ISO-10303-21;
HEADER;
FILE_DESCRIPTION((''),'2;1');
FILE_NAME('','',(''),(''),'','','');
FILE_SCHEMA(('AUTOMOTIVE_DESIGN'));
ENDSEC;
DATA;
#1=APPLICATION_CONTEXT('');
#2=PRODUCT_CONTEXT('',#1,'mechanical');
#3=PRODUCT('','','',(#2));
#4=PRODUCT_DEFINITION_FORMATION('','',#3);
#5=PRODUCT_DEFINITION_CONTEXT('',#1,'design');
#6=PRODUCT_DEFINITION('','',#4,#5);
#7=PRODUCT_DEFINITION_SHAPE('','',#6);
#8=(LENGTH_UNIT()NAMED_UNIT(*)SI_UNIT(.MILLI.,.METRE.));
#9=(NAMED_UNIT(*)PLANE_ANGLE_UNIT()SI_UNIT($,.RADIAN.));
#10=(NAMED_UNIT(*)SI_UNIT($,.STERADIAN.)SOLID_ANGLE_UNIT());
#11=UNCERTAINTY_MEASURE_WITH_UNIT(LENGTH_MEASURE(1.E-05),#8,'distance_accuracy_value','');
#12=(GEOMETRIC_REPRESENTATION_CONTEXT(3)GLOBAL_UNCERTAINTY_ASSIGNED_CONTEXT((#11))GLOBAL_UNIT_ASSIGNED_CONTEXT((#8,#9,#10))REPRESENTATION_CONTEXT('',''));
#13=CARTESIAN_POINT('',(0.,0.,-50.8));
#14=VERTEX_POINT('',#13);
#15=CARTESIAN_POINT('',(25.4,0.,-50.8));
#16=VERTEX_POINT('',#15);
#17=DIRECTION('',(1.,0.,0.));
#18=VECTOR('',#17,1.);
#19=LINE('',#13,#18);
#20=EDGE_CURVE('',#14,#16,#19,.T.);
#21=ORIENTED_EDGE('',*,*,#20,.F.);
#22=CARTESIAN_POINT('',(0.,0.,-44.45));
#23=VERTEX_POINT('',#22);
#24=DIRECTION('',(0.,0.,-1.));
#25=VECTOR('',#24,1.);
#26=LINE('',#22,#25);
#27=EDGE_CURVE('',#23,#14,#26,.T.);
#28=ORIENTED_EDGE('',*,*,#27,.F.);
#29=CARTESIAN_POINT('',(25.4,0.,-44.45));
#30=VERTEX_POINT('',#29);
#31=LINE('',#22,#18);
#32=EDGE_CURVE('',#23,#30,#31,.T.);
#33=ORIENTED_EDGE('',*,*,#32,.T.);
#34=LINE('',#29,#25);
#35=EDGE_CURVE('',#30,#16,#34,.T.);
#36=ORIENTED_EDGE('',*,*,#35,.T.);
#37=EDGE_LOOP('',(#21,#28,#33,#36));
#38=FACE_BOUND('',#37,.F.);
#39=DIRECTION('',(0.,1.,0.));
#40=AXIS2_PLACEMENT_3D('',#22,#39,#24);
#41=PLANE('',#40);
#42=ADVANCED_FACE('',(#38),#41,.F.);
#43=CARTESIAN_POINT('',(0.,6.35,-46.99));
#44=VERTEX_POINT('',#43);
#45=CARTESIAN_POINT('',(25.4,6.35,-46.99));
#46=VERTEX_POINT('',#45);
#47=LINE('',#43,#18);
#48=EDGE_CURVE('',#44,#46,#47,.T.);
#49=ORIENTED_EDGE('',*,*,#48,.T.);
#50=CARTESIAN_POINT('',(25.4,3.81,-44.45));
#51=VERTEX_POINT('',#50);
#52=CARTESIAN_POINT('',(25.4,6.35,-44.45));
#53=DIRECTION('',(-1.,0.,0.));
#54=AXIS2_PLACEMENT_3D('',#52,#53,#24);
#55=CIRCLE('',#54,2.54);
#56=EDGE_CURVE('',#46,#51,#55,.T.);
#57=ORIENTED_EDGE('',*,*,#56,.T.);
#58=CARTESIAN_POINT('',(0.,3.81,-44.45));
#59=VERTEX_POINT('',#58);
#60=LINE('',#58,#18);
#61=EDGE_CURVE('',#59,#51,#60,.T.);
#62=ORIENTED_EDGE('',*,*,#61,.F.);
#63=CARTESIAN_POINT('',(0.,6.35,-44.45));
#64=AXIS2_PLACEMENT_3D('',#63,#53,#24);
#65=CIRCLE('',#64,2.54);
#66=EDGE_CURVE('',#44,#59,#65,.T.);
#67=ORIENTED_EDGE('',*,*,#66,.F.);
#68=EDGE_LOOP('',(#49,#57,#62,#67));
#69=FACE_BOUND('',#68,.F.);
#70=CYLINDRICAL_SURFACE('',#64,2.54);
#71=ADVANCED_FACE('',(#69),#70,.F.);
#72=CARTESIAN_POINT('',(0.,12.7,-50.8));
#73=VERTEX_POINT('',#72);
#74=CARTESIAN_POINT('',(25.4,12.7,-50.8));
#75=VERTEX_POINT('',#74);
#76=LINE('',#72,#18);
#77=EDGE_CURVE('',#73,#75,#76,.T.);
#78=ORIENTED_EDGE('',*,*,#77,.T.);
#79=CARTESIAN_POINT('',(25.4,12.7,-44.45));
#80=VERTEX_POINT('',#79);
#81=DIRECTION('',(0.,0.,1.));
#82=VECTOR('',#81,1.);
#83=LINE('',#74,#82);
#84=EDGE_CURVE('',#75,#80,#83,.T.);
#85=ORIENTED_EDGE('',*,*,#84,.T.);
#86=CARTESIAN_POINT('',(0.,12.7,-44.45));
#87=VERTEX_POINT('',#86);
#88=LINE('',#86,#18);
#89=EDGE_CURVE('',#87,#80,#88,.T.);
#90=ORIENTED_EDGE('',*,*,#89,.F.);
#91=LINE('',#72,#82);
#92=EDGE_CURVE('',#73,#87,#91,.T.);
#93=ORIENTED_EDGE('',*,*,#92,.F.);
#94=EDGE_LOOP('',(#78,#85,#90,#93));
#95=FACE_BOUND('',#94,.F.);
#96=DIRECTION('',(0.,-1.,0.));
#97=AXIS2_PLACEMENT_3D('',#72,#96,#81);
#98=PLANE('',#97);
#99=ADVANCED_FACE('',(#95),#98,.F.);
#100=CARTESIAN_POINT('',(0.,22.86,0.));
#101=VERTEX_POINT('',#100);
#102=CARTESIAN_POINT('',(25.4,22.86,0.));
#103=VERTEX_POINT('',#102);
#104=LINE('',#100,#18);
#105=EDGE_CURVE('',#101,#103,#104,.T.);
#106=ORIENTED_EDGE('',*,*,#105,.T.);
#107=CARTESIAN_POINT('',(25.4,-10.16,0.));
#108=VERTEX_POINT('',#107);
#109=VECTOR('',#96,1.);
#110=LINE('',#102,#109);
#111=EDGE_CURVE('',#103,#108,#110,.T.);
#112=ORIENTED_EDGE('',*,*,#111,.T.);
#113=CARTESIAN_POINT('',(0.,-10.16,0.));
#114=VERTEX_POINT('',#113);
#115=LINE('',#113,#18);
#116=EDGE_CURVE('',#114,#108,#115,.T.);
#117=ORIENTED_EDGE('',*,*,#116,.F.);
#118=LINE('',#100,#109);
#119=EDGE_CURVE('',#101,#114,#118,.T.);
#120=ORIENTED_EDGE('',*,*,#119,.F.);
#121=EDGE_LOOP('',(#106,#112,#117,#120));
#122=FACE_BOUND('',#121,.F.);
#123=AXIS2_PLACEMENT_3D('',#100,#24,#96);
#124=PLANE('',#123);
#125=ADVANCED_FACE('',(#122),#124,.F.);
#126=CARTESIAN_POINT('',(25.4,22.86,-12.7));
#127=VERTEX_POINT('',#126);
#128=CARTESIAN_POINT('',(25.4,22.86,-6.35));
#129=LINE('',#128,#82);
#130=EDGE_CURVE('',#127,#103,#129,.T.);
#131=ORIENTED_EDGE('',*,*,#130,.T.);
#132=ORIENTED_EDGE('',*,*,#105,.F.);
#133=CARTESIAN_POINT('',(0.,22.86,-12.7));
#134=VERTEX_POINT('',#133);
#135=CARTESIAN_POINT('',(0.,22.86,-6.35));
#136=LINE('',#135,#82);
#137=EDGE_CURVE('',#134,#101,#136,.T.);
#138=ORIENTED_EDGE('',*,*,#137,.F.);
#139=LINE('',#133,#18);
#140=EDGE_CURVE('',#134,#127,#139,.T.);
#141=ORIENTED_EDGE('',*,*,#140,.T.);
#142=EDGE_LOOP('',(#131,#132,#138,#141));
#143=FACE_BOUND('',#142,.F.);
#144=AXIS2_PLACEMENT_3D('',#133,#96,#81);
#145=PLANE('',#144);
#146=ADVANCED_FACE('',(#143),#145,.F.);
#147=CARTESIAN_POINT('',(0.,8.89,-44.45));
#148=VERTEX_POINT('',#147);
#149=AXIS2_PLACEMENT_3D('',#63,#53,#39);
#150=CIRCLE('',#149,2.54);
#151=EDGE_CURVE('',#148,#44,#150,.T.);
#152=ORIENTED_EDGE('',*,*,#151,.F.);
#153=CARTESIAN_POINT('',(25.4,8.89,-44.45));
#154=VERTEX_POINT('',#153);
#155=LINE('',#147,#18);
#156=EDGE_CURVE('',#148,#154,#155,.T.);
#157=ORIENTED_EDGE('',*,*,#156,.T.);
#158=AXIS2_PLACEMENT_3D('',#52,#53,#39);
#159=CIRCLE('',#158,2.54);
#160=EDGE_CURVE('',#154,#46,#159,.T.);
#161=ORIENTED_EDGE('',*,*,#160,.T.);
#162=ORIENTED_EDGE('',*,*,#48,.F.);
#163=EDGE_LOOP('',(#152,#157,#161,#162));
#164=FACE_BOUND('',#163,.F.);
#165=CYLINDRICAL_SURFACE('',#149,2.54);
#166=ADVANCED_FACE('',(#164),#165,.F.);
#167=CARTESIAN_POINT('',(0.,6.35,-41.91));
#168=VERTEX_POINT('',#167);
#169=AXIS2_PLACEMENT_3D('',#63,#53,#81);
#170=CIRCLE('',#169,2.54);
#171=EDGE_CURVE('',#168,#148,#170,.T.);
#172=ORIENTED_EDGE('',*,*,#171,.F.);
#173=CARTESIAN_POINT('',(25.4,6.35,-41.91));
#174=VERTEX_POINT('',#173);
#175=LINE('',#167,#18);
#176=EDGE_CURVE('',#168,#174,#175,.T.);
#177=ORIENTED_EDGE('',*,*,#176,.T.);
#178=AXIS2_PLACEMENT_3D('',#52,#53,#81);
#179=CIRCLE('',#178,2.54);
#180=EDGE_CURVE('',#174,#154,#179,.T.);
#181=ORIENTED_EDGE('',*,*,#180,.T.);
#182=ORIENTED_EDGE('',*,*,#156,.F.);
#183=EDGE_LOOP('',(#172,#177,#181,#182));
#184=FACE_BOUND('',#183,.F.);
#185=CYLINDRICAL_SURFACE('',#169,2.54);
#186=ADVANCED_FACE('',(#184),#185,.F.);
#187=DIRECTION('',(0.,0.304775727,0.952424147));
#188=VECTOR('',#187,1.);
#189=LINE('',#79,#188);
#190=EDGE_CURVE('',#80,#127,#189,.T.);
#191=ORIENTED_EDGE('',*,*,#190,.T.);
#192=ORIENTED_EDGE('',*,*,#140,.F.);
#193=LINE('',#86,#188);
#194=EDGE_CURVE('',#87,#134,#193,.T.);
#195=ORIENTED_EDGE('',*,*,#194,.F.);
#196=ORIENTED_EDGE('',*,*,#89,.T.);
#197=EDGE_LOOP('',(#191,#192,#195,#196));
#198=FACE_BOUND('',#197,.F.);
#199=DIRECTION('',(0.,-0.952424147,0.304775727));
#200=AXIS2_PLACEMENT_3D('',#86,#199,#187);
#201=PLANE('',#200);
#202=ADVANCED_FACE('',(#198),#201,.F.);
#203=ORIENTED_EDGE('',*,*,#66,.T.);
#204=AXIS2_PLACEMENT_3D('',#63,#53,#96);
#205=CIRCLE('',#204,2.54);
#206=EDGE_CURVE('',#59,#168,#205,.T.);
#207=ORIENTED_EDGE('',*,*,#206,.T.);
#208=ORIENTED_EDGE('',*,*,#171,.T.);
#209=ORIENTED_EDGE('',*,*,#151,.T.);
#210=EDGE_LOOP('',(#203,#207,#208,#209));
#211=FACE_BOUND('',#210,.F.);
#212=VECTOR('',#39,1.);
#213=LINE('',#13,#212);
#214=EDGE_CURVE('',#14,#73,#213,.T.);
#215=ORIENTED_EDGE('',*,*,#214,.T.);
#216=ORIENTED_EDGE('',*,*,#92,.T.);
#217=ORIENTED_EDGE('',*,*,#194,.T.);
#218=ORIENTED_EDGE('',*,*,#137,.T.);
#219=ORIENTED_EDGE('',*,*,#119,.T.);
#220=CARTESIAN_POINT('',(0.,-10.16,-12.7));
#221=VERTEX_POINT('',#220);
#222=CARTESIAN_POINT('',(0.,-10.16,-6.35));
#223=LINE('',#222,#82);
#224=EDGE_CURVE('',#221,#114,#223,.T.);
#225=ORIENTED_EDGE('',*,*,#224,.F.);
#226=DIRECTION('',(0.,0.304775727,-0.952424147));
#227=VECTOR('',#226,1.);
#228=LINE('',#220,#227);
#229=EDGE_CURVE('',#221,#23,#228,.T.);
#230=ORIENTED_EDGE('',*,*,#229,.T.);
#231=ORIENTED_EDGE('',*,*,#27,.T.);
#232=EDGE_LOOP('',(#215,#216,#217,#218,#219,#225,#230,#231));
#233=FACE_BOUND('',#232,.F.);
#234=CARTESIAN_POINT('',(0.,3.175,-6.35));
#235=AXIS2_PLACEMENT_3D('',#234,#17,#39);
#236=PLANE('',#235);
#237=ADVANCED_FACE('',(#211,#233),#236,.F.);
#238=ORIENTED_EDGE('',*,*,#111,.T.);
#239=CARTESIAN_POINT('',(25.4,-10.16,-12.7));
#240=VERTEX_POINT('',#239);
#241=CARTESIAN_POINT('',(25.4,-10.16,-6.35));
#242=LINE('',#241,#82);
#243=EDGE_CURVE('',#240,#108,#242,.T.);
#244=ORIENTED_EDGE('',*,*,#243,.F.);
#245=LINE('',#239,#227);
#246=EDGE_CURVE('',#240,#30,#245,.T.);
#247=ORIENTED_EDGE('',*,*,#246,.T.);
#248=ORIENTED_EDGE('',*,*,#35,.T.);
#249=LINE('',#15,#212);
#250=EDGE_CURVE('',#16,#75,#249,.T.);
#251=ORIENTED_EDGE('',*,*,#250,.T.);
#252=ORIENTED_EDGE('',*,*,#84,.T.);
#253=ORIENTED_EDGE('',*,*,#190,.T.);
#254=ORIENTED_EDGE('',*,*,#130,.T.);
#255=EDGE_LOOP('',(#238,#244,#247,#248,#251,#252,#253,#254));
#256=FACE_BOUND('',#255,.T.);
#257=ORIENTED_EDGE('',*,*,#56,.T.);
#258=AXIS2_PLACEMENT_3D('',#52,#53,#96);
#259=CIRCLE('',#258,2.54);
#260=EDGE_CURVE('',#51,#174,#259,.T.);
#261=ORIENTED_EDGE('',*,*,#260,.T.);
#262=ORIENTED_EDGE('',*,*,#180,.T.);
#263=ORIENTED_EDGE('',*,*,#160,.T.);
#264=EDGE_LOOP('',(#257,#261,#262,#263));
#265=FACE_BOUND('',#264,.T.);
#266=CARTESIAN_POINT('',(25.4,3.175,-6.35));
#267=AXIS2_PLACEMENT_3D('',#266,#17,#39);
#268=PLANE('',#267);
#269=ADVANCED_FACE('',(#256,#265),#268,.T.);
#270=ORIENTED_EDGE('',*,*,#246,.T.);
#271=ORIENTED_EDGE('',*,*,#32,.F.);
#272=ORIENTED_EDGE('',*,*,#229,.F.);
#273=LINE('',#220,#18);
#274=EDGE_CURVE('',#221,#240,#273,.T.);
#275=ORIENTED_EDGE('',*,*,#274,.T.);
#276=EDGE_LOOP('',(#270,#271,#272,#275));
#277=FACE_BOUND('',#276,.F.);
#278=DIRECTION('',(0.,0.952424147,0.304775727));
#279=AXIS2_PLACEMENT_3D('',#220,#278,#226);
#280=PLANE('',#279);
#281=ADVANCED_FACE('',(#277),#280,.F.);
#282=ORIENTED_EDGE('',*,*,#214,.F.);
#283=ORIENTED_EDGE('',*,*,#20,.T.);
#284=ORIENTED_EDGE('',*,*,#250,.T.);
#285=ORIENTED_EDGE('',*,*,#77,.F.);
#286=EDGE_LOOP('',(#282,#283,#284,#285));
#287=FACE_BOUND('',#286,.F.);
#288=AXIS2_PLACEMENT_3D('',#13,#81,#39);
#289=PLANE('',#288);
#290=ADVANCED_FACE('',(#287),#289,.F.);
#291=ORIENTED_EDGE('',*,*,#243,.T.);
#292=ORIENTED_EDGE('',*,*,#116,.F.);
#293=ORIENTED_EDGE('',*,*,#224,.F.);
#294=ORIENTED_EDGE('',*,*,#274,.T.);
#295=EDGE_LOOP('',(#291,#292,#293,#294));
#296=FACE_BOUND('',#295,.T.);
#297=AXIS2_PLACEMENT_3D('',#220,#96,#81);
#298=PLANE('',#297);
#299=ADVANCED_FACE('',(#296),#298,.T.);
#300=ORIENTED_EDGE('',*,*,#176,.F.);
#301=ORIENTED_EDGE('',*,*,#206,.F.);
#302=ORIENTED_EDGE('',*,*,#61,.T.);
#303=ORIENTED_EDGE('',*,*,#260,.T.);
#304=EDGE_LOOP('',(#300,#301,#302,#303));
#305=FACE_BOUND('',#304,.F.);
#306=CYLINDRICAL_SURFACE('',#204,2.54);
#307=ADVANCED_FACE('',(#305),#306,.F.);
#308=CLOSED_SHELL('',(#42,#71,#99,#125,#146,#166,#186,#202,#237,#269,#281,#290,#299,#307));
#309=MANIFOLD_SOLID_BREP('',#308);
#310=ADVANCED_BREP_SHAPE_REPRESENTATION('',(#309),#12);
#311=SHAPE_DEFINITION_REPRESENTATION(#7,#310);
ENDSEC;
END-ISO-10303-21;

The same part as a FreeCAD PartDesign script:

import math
import FreeCAD as App
import Part
import Sketcher

V = App.Vector
Q = App.Units.Quantity

doc = App.newDocument("Part")
body = doc.addObject("PartDesign::Body", "Body")

# Sketch on YZ plane
sketch1 = body.newObject("Sketcher::SketchObject", "Sketch")
sketch1.AttachmentSupport = (doc.getObject("YZ_Plane"), [""])
sketch1.MapMode = "FlatFace"
sketch1.addGeometry([
    Part.LineSegment(V(-10.2, 0, 0), V(-10.2, -12.7, 0)),  # 0
    Part.LineSegment(V(-10.2, -12.7, 0), V(0, -44.5, 0)),  # 1
    Part.LineSegment(V(0, -44.5, 0), V(0, -50.8, 0)),  # 2
    Part.LineSegment(V(0, -50.8, 0), V(12.7, -50.8, 0)),  # 3
    Part.LineSegment(V(12.7, -50.8, 0), V(12.7, -44.5, 0)),  # 4
    Part.LineSegment(V(12.7, -44.5, 0), V(22.9, -12.7, 0)),  # 5
    Part.LineSegment(V(22.9, -12.7, 0), V(22.9, 0, 0)),  # 6
    Part.LineSegment(V(22.9, 0, 0), V(-10.2, 0, 0)),  # 7
    Part.ArcOfCircle(Part.Circle(V(6.3, -44.5, 0), V(0, 0, 1), 2.5), math.radians(180), math.radians(270)),  # 8
    Part.ArcOfCircle(Part.Circle(V(6.3, -44.5, 0), V(0, 0, 1), 2.5), math.radians(90), math.radians(180)),  # 9
    Part.ArcOfCircle(Part.Circle(V(6.3, -44.5, 0), V(0, 0, 1), 2.5), math.radians(0), math.radians(90)),  # 10
    Part.ArcOfCircle(Part.Circle(V(6.3, -44.5, 0), V(0, 0, 1), 2.5), math.radians(-90), math.radians(0)),  # 11
], False)
sketch1.addConstraint([
    Sketcher.Constraint("Coincident", 0, 2, 1, 1),
    Sketcher.Constraint("Coincident", 1, 2, 2, 1),
    Sketcher.Constraint("Coincident", 2, 2, 3, 1),
    Sketcher.Constraint("Coincident", 3, 2, 4, 1),
    Sketcher.Constraint("Coincident", 4, 2, 5, 1),
    Sketcher.Constraint("Coincident", 5, 2, 6, 1),
    Sketcher.Constraint("Coincident", 6, 2, 7, 1),
    Sketcher.Constraint("Coincident", 7, 2, 0, 1),
    Sketcher.Constraint("Tangent", 8, 1, 9, 2),
    Sketcher.Constraint("Tangent", 9, 1, 10, 2),
    Sketcher.Constraint("Tangent", 10, 1, 11, 2),
    Sketcher.Constraint("Tangent", 11, 1, 8, 2),
    Sketcher.Constraint("Vertical", 0),
    Sketcher.Constraint("Vertical", 2),
    Sketcher.Constraint("Horizontal", 3),
    Sketcher.Constraint("Vertical", 4),
    Sketcher.Constraint("Vertical", 6),
    Sketcher.Constraint("Horizontal", 7),
    Sketcher.Constraint("Equal", 8, 9),
    Sketcher.Constraint("PointOnObject", 1, 2, -2),
    Sketcher.Constraint("PointOnObject", 6, 2, -1),
    Sketcher.Constraint("Horizontal", 11, 3, 1, 2),
    Sketcher.Constraint("Horizontal", 1, 2, 4, 2),
    Sketcher.Constraint("Horizontal", 0, 2, 5, 2),
    Sketcher.Constraint("Horizontal", 4, 2, 8, 1),
    Sketcher.Constraint("Horizontal", 8, 1, 10, 1),
    Sketcher.Constraint("Vertical", 11, 3, 9, 1),
    Sketcher.Constraint("Vertical", 9, 1, 11, 1),
    Sketcher.Constraint("Equal", 3, 0),
    Sketcher.Constraint("Equal", 1, 5),
    Sketcher.Constraint("Radius", 8, Q("0.1 in")),
    Sketcher.Constraint("DistanceX", 3, 1, 3, 2, Q("0.5 in")),
    Sketcher.Constraint("DistanceX", 7, 2, 7, 1, Q("1.3 in")),
    Sketcher.Constraint("DistanceY", 2, 2, -1, 1, Q("2 in")),
    Sketcher.Constraint("DistanceY", 2, 2, 2, 1, Q("0.25 in")),
    Sketcher.Constraint("DistanceX", -1, 1, 8, 3, Q("0.25 in")),
])
pad1 = body.newObject("PartDesign::Pad", "Pad")
pad1.Profile = sketch1
pad1.Length = Q("1 in")

doc.recompute()
